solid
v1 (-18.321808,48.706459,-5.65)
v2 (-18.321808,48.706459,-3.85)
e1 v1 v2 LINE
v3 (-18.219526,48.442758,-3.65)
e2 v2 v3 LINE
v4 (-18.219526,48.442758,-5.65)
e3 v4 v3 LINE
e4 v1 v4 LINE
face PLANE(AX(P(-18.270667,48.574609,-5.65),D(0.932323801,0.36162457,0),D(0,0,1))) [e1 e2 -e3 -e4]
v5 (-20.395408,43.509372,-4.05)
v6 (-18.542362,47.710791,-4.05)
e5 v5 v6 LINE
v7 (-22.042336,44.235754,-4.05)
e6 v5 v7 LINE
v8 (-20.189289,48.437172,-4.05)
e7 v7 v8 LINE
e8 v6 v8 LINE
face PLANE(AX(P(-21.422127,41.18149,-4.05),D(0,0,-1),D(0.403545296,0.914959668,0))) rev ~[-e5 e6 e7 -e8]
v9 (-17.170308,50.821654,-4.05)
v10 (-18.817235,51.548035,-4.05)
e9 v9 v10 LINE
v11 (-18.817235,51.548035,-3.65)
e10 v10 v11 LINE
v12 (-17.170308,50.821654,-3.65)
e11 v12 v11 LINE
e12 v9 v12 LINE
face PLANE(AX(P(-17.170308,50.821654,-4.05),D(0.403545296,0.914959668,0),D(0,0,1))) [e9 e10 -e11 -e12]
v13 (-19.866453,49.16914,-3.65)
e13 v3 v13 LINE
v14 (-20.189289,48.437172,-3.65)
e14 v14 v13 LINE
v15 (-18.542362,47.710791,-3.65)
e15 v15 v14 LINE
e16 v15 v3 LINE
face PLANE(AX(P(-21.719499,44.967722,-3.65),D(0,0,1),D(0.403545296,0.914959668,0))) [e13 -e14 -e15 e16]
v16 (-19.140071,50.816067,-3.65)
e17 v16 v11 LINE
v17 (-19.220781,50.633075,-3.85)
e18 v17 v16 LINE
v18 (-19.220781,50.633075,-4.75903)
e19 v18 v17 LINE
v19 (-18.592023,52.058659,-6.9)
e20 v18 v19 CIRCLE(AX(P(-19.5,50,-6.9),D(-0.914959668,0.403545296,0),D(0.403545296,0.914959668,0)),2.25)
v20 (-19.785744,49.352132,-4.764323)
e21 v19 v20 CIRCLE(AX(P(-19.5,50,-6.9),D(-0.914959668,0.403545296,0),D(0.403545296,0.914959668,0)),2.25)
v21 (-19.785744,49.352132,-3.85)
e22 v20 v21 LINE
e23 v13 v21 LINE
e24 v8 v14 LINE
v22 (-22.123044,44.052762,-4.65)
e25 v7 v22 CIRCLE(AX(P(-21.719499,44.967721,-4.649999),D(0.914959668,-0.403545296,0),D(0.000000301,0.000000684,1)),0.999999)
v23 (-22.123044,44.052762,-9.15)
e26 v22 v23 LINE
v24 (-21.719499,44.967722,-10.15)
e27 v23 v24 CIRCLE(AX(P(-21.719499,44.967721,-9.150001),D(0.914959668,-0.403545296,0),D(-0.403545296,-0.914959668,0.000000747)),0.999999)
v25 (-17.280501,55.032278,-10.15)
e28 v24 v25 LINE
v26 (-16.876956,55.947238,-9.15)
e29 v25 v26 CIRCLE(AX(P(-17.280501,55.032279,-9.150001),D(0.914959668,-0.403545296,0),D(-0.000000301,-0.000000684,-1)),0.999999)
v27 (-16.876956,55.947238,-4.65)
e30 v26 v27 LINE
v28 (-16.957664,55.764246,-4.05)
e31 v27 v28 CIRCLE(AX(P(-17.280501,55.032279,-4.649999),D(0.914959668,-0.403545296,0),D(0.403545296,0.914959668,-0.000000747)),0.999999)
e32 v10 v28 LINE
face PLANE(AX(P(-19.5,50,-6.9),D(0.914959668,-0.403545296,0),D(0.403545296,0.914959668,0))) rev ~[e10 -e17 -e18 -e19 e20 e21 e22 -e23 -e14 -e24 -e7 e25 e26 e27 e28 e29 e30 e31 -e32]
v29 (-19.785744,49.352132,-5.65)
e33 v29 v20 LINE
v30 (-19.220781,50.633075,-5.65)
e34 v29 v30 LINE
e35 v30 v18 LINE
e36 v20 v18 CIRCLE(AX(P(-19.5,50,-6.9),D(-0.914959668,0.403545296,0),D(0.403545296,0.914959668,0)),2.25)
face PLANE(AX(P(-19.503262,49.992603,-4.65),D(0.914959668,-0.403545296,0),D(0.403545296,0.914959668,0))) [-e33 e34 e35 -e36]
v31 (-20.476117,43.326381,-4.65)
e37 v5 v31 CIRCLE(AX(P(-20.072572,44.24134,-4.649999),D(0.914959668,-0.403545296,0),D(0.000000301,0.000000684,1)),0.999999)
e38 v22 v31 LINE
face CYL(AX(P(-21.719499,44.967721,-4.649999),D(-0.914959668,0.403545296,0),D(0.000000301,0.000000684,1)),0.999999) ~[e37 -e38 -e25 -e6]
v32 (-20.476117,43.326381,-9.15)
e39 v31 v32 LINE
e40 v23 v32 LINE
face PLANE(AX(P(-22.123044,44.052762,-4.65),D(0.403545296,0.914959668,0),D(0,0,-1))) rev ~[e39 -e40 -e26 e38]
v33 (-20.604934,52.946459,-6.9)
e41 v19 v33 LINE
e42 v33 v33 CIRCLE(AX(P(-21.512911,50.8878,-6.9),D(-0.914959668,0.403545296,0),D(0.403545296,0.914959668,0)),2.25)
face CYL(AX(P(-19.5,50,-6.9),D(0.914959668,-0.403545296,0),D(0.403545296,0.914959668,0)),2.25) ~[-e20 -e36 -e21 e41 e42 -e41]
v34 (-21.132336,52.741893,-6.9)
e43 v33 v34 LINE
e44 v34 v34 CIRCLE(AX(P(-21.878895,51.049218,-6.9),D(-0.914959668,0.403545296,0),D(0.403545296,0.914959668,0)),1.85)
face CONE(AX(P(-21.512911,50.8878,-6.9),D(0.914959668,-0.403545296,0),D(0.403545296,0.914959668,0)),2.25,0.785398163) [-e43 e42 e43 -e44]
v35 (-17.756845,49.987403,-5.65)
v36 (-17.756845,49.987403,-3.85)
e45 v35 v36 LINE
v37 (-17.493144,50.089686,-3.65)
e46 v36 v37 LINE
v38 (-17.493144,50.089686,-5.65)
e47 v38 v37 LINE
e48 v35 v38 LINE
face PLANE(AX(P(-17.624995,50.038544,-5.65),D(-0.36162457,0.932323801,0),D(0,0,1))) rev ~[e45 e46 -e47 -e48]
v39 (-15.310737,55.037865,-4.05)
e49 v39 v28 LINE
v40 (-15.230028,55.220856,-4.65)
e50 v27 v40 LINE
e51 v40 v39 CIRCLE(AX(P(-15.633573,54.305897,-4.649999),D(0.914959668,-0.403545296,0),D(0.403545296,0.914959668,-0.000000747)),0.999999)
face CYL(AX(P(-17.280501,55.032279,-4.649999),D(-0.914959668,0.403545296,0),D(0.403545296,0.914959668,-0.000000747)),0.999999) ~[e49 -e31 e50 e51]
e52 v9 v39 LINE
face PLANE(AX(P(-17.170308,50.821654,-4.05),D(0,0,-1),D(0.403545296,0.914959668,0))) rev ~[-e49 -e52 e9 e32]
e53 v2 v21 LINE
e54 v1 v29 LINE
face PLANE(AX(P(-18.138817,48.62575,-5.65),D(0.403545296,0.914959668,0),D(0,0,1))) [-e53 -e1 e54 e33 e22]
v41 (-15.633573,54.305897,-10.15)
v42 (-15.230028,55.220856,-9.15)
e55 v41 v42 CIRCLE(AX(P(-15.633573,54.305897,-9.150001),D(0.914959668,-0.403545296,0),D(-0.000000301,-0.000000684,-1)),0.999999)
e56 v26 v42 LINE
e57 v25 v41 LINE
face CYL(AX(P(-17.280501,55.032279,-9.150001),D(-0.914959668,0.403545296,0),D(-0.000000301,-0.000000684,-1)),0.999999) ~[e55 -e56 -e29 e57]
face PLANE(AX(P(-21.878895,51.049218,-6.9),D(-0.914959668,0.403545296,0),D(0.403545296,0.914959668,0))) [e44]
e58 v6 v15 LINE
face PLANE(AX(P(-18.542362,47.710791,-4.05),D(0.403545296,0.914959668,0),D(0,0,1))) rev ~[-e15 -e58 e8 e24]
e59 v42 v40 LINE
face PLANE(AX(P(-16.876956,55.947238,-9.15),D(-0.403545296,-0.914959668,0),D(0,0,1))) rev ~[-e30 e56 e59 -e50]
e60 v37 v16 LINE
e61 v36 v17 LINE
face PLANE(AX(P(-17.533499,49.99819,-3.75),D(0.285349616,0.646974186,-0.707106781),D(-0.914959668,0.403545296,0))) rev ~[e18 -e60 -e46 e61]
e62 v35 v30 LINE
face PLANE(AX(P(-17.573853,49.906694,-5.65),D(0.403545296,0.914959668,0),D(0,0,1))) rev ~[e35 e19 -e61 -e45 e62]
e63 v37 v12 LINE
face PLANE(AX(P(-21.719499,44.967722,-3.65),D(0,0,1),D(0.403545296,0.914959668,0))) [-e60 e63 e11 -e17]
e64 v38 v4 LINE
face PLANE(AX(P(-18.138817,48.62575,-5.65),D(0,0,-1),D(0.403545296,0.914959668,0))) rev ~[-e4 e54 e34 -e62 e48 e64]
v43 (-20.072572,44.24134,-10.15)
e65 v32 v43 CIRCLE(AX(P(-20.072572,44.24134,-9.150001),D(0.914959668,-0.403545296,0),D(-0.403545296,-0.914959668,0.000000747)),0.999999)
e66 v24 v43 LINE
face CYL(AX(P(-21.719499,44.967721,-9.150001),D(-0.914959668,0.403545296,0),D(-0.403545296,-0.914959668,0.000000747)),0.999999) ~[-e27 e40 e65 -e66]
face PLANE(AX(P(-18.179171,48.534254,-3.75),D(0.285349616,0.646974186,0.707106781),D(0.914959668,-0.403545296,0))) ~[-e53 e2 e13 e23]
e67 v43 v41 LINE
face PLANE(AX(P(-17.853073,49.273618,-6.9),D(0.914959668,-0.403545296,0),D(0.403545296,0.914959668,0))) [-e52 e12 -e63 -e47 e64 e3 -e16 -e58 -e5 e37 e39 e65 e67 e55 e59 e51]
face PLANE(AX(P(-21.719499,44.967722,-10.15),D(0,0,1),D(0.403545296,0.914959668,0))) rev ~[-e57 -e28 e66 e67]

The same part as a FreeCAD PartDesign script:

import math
import FreeCAD as App
import Part
import Sketcher
Q = App.Units.Quantity


def edges_at(feature, points):
    """Names of the edges that pass closest to the given points."""
    edges = feature.Shape.Edges
    near = lambda p: min(range(len(edges)), key=lambda i: edges[i].distToShape(Part.Vertex(*p))[0])
    return sorted({f"Edge{near(p) + 1}" for p in points})

doc = App.newDocument("Part")
body = doc.addObject("PartDesign::Body", "Body")

sketch1 = doc.addObject("Sketcher::SketchObject", "Sketch")
body.addObject(sketch1)
sketch1.AttachmentSupport = (doc.YZ_Plane, [""])
sketch1.MapMode = "FlatFace"
sketch1.addGeometry(Part.LineSegment(App.Vector(-6.5, 2.2, 0), App.Vector(-6.5, -2.2, 0)), False)
sketch1.addGeometry(Part.ArcOfCircle(Part.Circle(App.Vector(-5.5, -2.3, 0), App.Vector(0, 0, 1), 1), math.radians(180), math.radians(270)), False)
sketch1.addGeometry(Part.LineSegment(App.Vector(-5.5, -3.2, 0), App.Vector(5.5, -3.2, 0)), False)
sketch1.addGeometry(Part.ArcOfCircle(Part.Circle(App.Vector(5.5, -2.3, 0), App.Vector(0, 0, 1), 1), math.radians(-90), math.radians(0)), False)
sketch1.addGeometry(Part.LineSegment(App.Vector(6.5, -2.2, 0), App.Vector(6.5, 2.2, 0)), False)
sketch1.addGeometry(Part.ArcOfCircle(Part.Circle(App.Vector(5.5, 2.3, 0), App.Vector(0, 0, 1), 1), math.radians(0), math.radians(90)), False)
sketch1.addGeometry(Part.LineSegment(App.Vector(5.5, 3.2, 0), App.Vector(-5.5, 3.2, 0)), False)
sketch1.addGeometry(Part.ArcOfCircle(Part.Circle(App.Vector(-5.5, 2.3, 0), App.Vector(0, 0, 1), 1), math.radians(90), math.radians(180)), False)
sketch1.addConstraint(Sketcher.Constraint("Tangent", 0, 2, 1, 1))
sketch1.addConstraint(Sketcher.Constraint("Tangent", 1, 2, 2, 1))
sketch1.addConstraint(Sketcher.Constraint("Tangent", 2, 2, 3, 1))
sketch1.addConstraint(Sketcher.Constraint("Tangent", 3, 2, 4, 1))
sketch1.addConstraint(Sketcher.Constraint("Tangent", 4, 2, 5, 1))
sketch1.addConstraint(Sketcher.Constraint("Tangent", 5, 2, 6, 1))
sketch1.addConstraint(Sketcher.Constraint("Tangent", 6, 2, 7, 1))
sketch1.addConstraint(Sketcher.Constraint("Tangent", 7, 2, 0, 1))
sketch1.addConstraint(Sketcher.Constraint("Vertical", 0))
sketch1.addConstraint(Sketcher.Constraint("Horizontal", 2))
sketch1.addConstraint(Sketcher.Constraint("Vertical", 4))
sketch1.addConstraint(Sketcher.Constraint("Horizontal", 6))
sketch1.addConstraint(Sketcher.Constraint("Equal", 1, 3))
sketch1.addConstraint(Sketcher.Constraint("Equal", 3, 5))
sketch1.addConstraint(Sketcher.Constraint("Equal", 5, 7))
sketch1.addConstraint(Sketcher.Constraint("Symmetric", 1, 3, 5, 3, -1, 1))
sketch1.addConstraint(Sketcher.Constraint("Radius", 1, Q("0.999999 mm")))
sketch1.addConstraint(Sketcher.Constraint("DistanceX", 2, 1, 2, 2, Q("11 mm")))
sketch1.addConstraint(Sketcher.Constraint("DistanceY", 0, 2, 0, 1, Q("4.5 mm")))
pad1 = doc.addObject("PartDesign::Pad", "Pad")
body.addObject(pad1)
pad1.Profile = sketch1
pad1.Length = 1.8

sketch2 = doc.addObject("Sketcher::SketchObject", "Sketch001")
body.addObject(sketch2)
sketch2.AttachmentSupport = (doc.YZ_Plane, [""])
sketch2.MapMode = "FlatFace"
sketch2.addGeometry(Part.Circle(App.Vector(0, 0, 0), App.Vector(0, 0, 1), 2.2), False)
sketch2.addConstraint(Sketcher.Constraint("Coincident", 0, 3, -1, 1))
sketch2.addConstraint(Sketcher.Constraint("Diameter", 0, Q("4.5 mm")))
pad2 = doc.addObject("PartDesign::Pad", "Pad001")
body.addObject(pad2)
pad2.Profile = sketch2
pad2.Length = 2.6
pad2.Reversed = True
doc.recompute()

chamfer = doc.addObject("PartDesign::Chamfer", "Chamfer")
body.addObject(chamfer)
chamfer.Base = (pad2, edges_at(pad2, [(-2.6, -2.25, 0)]))
chamfer.Size = 0.4

sketch3 = doc.addObject("Sketcher::SketchObject", "Sketch002")
body.addObject(sketch3)
sketch3.AttachmentSupport = (doc.YZ_Plane, [""])
sketch3.MapMode = "FlatFace"
sketch3.AttachmentOffset = App.Placement(App.Vector(0, 0, 1.8), App.Rotation())
sketch3.addGeometry(Part.LineSegment(App.Vector(-0.71, 3.25, 0), App.Vector(-0.71, 1.25, 0)), False)
sketch3.addGeometry(Part.LineSegment(App.Vector(-0.71, 1.25, 0), App.Vector(0.69, 1.25, 0)), False)
sketch3.addGeometry(Part.LineSegment(App.Vector(0.69, 1.25, 0), App.Vector(0.69, 3.25, 0)), False)
sketch3.addGeometry(Part.LineSegment(App.Vector(0.69, 3.25, 0), App.Vector(-0.71, 3.25, 0)), False)
sketch3.addGeometry(Part.LineSegment(App.Vector(1.69, 3.25, 0), App.Vector(1.69, 2.85, 0)), False)
sketch3.addGeometry(Part.LineSegment(App.Vector(1.69, 2.85, 0), App.Vector(8.14, 2.85, 0)), False)
sketch3.addGeometry(Part.LineSegment(App.Vector(8.14, 2.85, 0), App.Vector(8.14, 3.25, 0)), False)
sketch3.addGeometry(Part.LineSegment(App.Vector(8.14, 3.25, 0), App.Vector(1.69, 3.25, 0)), False)
sketch3.addGeometry(Part.LineSegment(App.Vector(-8.84, 3.25, 0), App.Vector(-8.84, 2.85, 0)), False)
sketch3.addGeometry(Part.LineSegment(App.Vector(-8.84, 2.85, 0), App.Vector(-1.71, 2.85, 0)), False)
sketch3.addGeometry(Part.LineSegment(App.Vector(-1.71, 2.85, 0), App.Vector(-1.71, 3.25, 0)), False)
sketch3.addGeometry(Part.LineSegment(App.Vector(-1.71, 3.25, 0), App.Vector(-8.84, 3.25, 0)), False)
sketch3.addConstraint(Sketcher.Constraint("Coincident", 0, 2, 1, 1))
sketch3.addConstraint(Sketcher.Constraint("Coincident", 1, 2, 2, 1))
sketch3.addConstraint(Sketcher.Constraint("Coincident", 2, 2, 3, 1))
sketch3.addConstraint(Sketcher.Constraint("Coincident", 3, 2, 0, 1))
sketch3.addConstraint(Sketcher.Constraint("Coincident", 4, 2, 5, 1))
sketch3.addConstraint(Sketcher.Constraint("Coincident", 5, 2, 6, 1))
sketch3.addConstraint(Sketcher.Constraint("Coincident", 6, 2, 7, 1))
sketch3.addConstraint(Sketcher.Constraint("Coincident", 7, 2, 4, 1))
sketch3.addConstraint(Sketcher.Constraint("Coincident", 8, 2, 9, 1))
sketch3.addConstraint(Sketcher.Constraint("Coincident", 9, 2, 10, 1))
sketch3.addConstraint(Sketcher.Constraint("Coincident", 10, 2, 11, 1))
sketch3.addConstraint(Sketcher.Constraint("Coincident", 11, 2, 8, 1))
sketch3.addConstraint(Sketcher.Constraint("Vertical", 0))
sketch3.addConstraint(Sketcher.Constraint("Horizontal", 1))
sketch3.addConstraint(Sketcher.Constraint("Vertical", 2))
sketch3.addConstraint(Sketcher.Constraint("Horizontal", 3))
sketch3.addConstraint(Sketcher.Constraint("Vertical", 4))
sketch3.addConstraint(Sketcher.Constraint("Horizontal", 5))
sketch3.addConstraint(Sketcher.Constraint("Vertical", 6))
sketch3.addConstraint(Sketcher.Constraint("Horizontal", 7))
sketch3.addConstraint(Sketcher.Constraint("Vertical", 8))
sketch3.addConstraint(Sketcher.Constraint("Horizontal", 9))
sketch3.addConstraint(Sketcher.Constraint("Vertical", 10))
sketch3.addConstraint(Sketcher.Constraint("Horizontal", 11))
sketch3.addConstraint(Sketcher.Constraint("Horizontal", 3, 2, 6, 2))
sketch3.addConstraint(Sketcher.Constraint("Horizontal", 5, 2, 8, 2))
sketch3.addConstraint(Sketcher.Constraint("Horizontal", 7, 2, 10, 2))
sketch3.addConstraint(Sketcher.Constraint("DistanceY", 0, 2, 0, 1, Q("2 mm")))
sketch3.addConstraint(Sketcher.Constraint("DistanceX", 1, 1, 1, 2, Q("1.4 mm")))
sketch3.addConstraint(Sketcher.Constraint("DistanceY", 4, 2, 4, 1, Q("0.4 mm")))
sketch3.addConstraint(Sketcher.Constraint("DistanceX", 2, 2, 4, 2, Q("1.000001 mm")))
sketch3.addConstraint(Sketcher.Constraint("DistanceX", 9, 2, 3, 2, Q("1 mm")))
sketch3.addConstraint(Sketcher.Constraint("DistanceY", -1, 1, 0, 2, Q("1.25 mm")))
sketch3.addConstraint(Sketcher.Constraint("DistanceX", 5, 1, 5, 2, Q("6.443533 mm")))
sketch3.addConstraint(Sketcher.Constraint("DistanceX", 9, 1, 9, 2, Q("7.136163 mm")))
sketch3.addConstraint(Sketcher.Constraint("DistanceX", -1, 1, 5, 2, Q("8.13545 mm")))
pocket1 = doc.addObject("PartDesign::Pocket", "Pocket")
body.addObject(pocket1)
pocket1.Profile = sketch3
pocket1.Length = 1.8
doc.recompute()

chamfer2 = doc.addObject("PartDesign::Chamfer", "Chamfer001")
body.addObject(chamfer2)
chamfer2.Base = (pocket1, edges_at(pocket1, [
    (1.8, -0.708, 2.25),
    (1.8, 0.692, 2.25),
    (0.9, 0.692, 3.25),
    (0.9, -0.708, 3.25),
]))
chamfer2.Size = 0.2
body2 = doc.addObject("PartDesign::Body", "Body001")
doc.recompute()

body.Placement = App.Placement(App.Vector(-19.5, 50, -6.9), App.Rotation(App.Vector(0, 0, -1), 23.8))
boolean = doc.addObject("PartDesign::Boolean", "Boolean")
body2.addObject(boolean)
boolean.Type = "Fuse"
boolean.addObjects([body])

doc.recompute()
